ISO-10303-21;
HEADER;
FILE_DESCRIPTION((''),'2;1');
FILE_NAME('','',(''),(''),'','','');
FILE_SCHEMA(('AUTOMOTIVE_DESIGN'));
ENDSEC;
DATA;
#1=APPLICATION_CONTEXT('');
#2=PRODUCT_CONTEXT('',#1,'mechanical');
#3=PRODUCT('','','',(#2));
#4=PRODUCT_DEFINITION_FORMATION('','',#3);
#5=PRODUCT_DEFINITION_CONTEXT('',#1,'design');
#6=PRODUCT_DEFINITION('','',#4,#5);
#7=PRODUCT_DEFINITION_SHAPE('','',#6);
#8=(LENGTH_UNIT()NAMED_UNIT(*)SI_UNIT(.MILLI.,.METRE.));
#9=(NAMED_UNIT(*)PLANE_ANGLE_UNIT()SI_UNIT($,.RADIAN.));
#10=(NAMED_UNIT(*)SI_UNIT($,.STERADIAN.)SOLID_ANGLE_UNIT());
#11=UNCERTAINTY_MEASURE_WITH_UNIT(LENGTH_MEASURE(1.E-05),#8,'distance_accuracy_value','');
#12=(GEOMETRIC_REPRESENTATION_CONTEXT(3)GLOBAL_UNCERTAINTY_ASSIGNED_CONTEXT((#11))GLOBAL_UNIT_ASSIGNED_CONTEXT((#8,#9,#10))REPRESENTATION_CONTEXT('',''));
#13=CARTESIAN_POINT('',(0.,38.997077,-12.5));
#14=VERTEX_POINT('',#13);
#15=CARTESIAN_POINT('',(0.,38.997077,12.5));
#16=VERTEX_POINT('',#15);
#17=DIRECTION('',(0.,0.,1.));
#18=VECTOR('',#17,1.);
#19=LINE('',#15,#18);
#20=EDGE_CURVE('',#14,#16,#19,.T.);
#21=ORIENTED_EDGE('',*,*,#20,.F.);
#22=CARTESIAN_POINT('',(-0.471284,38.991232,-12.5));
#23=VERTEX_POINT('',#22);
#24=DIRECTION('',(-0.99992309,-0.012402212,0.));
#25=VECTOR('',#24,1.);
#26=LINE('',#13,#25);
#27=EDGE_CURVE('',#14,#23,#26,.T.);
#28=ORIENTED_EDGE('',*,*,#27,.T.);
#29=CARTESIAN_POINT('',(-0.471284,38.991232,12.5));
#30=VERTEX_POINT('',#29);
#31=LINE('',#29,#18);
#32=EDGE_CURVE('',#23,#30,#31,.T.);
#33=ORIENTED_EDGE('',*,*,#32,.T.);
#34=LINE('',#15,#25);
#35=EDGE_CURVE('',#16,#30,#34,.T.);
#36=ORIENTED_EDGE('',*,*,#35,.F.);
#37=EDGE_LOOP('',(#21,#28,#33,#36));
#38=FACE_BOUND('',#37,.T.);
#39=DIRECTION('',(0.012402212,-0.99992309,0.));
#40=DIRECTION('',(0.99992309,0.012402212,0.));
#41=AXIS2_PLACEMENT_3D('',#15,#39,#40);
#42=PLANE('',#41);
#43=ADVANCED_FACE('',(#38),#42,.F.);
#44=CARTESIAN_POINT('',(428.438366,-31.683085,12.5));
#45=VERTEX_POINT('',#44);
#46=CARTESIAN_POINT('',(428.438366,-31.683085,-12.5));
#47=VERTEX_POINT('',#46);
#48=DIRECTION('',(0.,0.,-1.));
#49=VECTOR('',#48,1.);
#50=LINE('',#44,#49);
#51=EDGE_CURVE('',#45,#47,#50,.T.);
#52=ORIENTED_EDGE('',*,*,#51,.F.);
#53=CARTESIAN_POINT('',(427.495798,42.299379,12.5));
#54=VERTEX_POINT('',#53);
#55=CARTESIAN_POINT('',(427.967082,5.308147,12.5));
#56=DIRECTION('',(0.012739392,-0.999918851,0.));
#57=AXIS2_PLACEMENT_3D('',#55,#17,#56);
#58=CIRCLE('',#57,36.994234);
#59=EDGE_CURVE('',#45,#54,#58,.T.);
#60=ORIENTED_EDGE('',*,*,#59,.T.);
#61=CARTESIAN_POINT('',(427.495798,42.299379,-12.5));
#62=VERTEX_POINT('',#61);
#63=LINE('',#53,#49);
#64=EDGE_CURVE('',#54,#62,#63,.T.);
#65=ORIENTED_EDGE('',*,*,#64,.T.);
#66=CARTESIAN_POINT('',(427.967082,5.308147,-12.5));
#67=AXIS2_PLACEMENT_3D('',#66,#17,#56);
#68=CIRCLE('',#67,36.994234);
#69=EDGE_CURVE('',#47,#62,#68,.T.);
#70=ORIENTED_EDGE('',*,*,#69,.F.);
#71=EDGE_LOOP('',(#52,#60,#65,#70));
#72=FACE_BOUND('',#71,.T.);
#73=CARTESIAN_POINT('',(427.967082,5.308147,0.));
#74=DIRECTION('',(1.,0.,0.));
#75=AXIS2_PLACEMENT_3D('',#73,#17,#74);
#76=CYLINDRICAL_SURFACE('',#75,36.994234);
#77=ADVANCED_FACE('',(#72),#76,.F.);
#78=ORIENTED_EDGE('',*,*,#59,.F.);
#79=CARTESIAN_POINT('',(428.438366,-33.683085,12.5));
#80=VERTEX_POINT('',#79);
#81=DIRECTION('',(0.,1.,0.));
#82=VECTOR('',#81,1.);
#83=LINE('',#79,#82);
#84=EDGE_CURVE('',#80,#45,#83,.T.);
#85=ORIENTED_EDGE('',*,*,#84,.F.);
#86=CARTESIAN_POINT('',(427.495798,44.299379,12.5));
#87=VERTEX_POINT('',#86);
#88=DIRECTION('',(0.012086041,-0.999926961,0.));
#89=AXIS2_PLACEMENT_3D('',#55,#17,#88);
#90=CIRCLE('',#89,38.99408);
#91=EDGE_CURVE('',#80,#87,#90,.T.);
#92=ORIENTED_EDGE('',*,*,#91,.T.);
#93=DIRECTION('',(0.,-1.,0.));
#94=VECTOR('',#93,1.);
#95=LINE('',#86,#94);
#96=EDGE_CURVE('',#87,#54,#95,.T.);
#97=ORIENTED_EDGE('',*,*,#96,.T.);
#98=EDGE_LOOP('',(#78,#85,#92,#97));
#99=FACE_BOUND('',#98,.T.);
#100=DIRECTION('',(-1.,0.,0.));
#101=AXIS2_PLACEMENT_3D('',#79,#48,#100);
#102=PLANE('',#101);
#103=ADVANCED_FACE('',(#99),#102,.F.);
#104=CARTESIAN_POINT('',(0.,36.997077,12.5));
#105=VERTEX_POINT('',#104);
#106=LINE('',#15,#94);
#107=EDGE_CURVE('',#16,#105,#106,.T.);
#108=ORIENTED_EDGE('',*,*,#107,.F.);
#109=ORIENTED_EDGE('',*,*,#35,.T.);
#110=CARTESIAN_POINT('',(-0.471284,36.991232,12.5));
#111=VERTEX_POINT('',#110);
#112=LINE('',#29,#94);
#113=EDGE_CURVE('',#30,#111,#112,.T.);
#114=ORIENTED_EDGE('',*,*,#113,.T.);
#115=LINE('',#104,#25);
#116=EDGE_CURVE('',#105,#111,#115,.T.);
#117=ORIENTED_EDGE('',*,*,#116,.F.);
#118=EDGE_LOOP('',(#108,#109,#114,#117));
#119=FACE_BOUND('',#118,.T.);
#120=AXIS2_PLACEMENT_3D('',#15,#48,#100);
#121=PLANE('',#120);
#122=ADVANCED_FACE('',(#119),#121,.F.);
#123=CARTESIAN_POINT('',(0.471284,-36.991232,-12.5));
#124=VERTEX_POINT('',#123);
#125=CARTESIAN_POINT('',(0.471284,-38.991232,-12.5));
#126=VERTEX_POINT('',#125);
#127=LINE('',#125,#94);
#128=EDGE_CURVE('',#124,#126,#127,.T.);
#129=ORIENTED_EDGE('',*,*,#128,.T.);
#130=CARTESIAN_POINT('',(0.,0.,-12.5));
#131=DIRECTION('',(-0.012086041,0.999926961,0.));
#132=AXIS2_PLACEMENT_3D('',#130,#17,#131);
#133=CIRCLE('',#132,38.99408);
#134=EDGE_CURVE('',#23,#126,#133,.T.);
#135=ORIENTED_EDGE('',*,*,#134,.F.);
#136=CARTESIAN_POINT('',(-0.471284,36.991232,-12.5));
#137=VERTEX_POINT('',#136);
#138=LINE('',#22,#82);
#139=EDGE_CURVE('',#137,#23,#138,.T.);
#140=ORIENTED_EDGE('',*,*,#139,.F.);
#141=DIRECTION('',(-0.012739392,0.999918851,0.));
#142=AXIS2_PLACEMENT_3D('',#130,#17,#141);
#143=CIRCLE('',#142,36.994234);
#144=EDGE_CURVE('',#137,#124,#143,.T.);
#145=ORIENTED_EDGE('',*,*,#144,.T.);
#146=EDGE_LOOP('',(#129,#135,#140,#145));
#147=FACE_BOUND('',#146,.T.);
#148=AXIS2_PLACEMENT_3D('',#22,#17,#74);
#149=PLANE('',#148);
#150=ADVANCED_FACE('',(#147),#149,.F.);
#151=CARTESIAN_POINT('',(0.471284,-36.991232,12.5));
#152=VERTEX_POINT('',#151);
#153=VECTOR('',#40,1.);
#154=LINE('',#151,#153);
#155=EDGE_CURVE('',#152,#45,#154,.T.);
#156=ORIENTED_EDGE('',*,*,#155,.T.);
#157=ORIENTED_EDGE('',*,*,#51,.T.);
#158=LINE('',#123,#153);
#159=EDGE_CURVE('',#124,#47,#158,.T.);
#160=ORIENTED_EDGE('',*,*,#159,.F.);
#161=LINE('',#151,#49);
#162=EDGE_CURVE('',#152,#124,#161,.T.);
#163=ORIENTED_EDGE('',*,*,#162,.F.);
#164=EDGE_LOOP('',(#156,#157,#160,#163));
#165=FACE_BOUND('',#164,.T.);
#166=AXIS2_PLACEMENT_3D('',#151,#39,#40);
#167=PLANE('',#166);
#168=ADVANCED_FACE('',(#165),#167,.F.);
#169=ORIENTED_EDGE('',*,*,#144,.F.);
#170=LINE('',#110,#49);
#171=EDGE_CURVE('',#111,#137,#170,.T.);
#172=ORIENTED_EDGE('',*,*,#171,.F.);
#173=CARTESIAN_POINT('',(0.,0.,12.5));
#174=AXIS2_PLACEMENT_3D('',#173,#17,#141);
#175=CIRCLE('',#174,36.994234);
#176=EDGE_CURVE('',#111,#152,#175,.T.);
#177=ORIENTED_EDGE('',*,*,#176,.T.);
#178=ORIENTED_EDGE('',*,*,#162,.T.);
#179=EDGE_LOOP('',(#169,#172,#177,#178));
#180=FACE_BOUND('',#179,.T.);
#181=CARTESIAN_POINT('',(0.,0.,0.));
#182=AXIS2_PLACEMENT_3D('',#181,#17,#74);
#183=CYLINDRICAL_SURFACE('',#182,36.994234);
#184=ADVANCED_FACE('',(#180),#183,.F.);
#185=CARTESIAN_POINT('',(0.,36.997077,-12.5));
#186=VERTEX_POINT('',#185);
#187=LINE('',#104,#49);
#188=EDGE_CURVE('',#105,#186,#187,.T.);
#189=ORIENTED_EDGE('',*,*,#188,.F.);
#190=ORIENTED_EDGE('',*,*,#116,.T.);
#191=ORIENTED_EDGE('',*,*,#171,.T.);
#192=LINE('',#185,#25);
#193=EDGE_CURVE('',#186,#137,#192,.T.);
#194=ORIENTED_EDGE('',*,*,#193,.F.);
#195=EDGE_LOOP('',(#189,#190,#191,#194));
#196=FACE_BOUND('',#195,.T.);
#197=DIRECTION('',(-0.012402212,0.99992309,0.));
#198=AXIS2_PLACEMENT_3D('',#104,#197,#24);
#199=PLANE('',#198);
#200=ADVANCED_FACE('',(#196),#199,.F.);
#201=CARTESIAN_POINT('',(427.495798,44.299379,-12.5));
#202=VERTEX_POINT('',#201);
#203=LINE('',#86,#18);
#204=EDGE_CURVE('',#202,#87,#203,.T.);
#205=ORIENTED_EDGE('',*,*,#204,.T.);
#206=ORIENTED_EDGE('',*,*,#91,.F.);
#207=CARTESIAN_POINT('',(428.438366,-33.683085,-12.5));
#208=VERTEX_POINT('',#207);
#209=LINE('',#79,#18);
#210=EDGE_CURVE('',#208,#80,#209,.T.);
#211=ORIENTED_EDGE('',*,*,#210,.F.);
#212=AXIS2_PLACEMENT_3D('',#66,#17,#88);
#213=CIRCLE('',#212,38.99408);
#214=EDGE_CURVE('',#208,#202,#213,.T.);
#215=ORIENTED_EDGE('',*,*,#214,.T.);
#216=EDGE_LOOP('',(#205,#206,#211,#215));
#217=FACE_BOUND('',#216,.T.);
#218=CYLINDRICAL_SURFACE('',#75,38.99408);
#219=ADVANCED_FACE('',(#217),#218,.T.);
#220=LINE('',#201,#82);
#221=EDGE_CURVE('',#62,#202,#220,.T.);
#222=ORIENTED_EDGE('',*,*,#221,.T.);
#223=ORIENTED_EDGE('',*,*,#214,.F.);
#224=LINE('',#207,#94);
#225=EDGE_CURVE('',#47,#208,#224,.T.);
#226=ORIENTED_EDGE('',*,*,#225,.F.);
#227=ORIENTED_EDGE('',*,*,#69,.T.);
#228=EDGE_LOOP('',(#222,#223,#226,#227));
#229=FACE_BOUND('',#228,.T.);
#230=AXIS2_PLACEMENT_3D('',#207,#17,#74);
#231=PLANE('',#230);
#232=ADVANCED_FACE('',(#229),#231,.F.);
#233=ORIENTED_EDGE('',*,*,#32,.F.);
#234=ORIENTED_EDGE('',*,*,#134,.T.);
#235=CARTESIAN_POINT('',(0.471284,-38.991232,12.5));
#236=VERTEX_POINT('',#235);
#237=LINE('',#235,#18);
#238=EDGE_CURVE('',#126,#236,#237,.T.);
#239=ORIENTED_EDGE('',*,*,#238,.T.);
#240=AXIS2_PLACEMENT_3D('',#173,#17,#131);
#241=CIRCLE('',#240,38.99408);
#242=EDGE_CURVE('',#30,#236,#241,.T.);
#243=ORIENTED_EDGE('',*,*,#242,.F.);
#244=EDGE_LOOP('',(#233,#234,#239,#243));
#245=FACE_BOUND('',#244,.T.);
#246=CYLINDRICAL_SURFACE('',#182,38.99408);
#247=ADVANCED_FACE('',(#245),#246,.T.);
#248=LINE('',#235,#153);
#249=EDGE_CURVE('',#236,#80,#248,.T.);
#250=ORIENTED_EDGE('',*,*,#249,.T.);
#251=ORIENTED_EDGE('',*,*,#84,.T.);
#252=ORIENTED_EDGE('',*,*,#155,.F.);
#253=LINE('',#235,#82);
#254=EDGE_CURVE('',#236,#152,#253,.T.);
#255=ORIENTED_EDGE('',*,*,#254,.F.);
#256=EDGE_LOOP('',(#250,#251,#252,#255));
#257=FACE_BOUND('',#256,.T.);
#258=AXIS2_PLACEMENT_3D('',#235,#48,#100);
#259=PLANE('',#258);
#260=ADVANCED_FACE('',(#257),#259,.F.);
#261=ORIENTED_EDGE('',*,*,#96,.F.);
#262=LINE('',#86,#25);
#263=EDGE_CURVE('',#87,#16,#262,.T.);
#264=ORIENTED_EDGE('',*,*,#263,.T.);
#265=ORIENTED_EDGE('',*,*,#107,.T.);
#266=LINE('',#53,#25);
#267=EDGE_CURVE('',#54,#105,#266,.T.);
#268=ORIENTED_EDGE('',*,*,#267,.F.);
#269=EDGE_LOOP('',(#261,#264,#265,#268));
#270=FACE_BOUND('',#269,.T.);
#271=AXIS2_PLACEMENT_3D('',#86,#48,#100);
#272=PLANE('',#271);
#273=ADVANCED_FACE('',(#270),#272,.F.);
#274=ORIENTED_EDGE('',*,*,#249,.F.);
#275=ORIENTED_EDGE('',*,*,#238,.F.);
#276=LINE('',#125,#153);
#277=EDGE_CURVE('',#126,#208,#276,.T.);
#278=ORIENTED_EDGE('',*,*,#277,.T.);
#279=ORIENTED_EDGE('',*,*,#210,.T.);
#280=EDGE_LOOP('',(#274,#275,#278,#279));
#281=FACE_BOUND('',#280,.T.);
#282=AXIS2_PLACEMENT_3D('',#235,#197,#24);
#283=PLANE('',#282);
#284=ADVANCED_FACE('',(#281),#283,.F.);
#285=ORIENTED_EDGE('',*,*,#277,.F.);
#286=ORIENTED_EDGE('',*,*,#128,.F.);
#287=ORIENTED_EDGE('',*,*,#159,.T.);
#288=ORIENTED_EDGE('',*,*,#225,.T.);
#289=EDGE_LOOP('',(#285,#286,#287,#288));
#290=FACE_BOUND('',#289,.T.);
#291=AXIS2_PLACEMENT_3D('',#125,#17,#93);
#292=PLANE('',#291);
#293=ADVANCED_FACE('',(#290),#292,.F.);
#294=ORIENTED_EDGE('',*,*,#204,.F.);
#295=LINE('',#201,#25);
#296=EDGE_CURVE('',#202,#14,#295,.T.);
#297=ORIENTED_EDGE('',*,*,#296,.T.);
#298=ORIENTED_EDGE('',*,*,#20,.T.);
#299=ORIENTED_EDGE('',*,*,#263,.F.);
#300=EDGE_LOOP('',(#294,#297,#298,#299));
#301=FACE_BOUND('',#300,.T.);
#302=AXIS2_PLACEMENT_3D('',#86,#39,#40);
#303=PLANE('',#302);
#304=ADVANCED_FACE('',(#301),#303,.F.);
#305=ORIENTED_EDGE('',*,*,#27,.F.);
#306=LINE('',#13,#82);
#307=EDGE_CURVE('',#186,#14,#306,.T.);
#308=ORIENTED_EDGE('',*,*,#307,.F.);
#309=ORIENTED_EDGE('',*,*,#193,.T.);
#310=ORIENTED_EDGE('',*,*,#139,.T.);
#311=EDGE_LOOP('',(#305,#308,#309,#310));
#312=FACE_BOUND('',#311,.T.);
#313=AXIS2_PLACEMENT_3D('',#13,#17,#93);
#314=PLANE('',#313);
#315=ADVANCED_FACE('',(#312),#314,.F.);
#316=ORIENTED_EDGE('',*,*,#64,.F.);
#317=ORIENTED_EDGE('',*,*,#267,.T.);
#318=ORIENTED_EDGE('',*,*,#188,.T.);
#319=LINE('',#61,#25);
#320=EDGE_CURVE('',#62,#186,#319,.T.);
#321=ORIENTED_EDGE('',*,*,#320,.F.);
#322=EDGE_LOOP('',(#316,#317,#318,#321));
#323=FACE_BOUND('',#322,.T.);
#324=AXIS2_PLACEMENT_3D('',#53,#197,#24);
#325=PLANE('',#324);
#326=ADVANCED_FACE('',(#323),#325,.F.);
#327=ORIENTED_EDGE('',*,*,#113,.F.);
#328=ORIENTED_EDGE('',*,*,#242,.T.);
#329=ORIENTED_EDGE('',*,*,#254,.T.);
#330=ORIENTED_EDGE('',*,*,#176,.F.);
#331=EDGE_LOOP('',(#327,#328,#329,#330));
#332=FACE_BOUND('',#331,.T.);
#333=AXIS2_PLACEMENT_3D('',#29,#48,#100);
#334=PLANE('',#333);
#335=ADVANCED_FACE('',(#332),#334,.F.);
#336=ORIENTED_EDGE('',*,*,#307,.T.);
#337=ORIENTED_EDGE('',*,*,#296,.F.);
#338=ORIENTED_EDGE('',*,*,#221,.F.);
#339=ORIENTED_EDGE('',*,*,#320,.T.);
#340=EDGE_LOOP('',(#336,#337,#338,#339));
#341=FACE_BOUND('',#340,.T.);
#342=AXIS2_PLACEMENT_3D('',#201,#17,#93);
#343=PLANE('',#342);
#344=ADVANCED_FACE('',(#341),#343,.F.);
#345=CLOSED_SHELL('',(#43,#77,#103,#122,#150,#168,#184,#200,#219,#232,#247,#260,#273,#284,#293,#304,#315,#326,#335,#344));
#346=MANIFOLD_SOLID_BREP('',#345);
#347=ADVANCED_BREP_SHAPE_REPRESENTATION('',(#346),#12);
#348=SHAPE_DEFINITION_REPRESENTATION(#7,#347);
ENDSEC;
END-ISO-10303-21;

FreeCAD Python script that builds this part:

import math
import FreeCAD as App
import Part
import Sketcher


def add_polygon(sketch, points):
    """Adds a closed chain of lines whose ends are joined by coincident constraints."""
    first, n = sketch.GeometryCount, len(points)
    for a, b in zip(points, points[1:] + points[:1]):
        sketch.addGeometry(Part.LineSegment(App.Vector(*a, 0), App.Vector(*b, 0)), False)
    for i in range(n):
        sketch.addConstraint(Sketcher.Constraint("Coincident", first + i, 2, first + (i + 1) % n, 1))

doc = App.newDocument("Part")
body = doc.addObject("PartDesign::Body", "Body")

# Sketch on YZ plane
sketch1 = doc.addObject("Sketcher::SketchObject", "Sketch")
body.addObject(sketch1)
sketch1.AttachmentSupport = (doc.YZ_Plane, [""])
sketch1.MapMode = "FlatFace"
add_polygon(sketch1, [(38.997077, 12.5), (36.997077, 12.5), (36.997077, -12.5), (38.997077, -12.5)])  # lines 0-3
sketch1.addConstraint([
    Sketcher.Constraint("Horizontal", 0),
    Sketcher.Constraint("Vertical", 1),
    Sketcher.Constraint("Horizontal", 2),
    Sketcher.Constraint("Vertical", 3),
    Sketcher.Constraint("DistanceX", 0, 2, 0, 1, 2.0),
    Sketcher.Constraint("DistanceY", 1, 2, 1, 1, 25.0),
    Sketcher.Constraint("DistanceY", -1, 1, 0, 2, 12.5),
    Sketcher.Constraint("DistanceX", -1, 1, 0, 2, 36.997077),
])

# Sketch on XY plane
sketch2 = doc.addObject("Sketcher::SketchObject", "Sketch001")
body.addObject(sketch2)
sketch2.AttachmentSupport = (doc.XY_Plane, [""])
sketch2.MapMode = "FlatFace"
sketch2.addGeometry([
    Part.LineSegment(App.Vector(-0.471284, 37.997077, 0), App.Vector(427.495798, 43.305224, 0)),
    Part.ArcOfCircle(Part.Circle(App.Vector(427.967082, 5.308147, 0), App.Vector(0, 0, 1), 38), math.radians(-89.289387), math.radians(90.710613)),
    Part.LineSegment(App.Vector(428.438366, -32.688931, 0), App.Vector(0.471284, -37.997077, 0)),
    Part.ArcOfCircle(Part.Circle(App.Vector(0, 0, 0), App.Vector(0, 0, 1), 38), math.radians(90.710613), math.radians(270.710613)),
], False)
sketch2.addConstraint([
    Sketcher.Constraint("Tangent", 0, 2, 1, 2),
    Sketcher.Constraint("Tangent", 1, 1, 2, 1),
    Sketcher.Constraint("Tangent", 2, 2, 3, 2),
    Sketcher.Constraint("Tangent", 3, 1, 0, 1),
    Sketcher.Constraint("Coincident", 3, 3, -1, 1),
    Sketcher.Constraint("Equal", 1, 3),
    Sketcher.Constraint("Radius", 1, 38.0),
    Sketcher.Constraint("Distance", 0, 428.0),
    Sketcher.Constraint("DistanceX", -1, 1, 0, 2, 427.495798),
])
doc.recompute()

additivepipe = doc.addObject("PartDesign::AdditivePipe", "AdditivePipe")
body.addObject(additivepipe)
additivepipe.Profile = sketch1
additivepipe.Spine = (sketch2, ["Edge1", "Edge2", "Edge3", "Edge4"])

doc.recompute()
